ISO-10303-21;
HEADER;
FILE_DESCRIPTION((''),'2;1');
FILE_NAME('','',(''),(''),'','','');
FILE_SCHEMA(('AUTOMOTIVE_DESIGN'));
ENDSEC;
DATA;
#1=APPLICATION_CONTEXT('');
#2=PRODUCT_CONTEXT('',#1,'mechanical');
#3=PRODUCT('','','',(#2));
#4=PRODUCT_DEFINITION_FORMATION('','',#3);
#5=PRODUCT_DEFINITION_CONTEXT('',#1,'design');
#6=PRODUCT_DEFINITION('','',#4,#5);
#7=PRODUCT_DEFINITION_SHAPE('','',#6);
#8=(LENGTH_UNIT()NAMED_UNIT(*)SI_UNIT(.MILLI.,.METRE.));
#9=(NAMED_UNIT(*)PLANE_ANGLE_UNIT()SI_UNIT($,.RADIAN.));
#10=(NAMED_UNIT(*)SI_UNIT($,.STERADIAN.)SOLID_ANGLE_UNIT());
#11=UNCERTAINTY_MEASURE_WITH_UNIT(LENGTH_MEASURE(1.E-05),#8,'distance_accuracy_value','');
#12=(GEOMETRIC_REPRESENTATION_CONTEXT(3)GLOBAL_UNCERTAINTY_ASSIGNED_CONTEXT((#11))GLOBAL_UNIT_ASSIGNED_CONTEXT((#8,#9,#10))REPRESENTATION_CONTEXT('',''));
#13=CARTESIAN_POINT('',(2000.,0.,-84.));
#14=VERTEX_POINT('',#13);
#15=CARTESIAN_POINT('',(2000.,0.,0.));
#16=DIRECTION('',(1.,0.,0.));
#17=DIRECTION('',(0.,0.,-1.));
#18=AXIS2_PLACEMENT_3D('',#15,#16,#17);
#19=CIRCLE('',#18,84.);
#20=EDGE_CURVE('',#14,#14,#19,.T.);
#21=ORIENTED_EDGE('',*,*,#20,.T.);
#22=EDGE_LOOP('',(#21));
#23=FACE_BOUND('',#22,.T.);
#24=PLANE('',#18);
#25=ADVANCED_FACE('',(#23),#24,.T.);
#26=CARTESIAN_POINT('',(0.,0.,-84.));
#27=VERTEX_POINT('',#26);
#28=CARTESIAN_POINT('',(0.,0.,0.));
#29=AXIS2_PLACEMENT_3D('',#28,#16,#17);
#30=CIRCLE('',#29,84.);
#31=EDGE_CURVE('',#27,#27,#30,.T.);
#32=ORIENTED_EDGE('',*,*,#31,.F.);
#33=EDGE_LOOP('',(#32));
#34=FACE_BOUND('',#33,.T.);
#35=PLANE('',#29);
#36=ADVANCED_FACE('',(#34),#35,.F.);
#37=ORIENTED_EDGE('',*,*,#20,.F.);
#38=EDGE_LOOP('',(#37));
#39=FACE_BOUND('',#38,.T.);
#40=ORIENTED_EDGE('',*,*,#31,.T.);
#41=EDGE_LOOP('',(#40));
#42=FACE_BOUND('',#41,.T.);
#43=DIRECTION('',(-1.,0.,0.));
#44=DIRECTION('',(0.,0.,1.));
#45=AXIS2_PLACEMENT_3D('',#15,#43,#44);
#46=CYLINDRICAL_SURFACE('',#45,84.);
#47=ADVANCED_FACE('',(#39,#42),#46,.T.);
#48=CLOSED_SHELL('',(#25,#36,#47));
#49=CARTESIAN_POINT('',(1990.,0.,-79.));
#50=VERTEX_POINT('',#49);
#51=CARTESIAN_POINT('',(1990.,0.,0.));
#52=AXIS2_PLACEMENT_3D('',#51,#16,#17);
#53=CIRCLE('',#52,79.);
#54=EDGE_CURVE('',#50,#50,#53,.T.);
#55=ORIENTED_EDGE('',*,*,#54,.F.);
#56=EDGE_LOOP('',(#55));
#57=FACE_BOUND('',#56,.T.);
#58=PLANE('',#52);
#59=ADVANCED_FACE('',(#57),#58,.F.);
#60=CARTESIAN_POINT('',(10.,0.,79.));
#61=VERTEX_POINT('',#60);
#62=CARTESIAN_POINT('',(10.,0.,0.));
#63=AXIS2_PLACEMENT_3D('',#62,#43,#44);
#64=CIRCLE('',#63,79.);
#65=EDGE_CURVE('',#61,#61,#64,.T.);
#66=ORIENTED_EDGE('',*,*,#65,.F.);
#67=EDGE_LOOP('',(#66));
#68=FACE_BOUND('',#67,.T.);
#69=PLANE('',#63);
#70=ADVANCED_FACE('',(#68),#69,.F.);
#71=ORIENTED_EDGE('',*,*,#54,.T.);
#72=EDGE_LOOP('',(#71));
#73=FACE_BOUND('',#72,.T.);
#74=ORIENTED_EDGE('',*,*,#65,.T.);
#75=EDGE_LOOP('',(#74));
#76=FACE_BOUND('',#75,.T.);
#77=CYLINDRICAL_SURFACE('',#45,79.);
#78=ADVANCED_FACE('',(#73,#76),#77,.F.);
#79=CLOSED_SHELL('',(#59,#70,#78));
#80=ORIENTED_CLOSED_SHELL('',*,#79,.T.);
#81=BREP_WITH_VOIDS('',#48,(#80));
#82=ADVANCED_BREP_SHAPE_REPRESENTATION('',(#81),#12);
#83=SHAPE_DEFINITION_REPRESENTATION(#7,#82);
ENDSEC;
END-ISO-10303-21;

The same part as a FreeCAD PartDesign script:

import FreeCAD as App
import Part
import Sketcher
from FreeCAD import Vector
Q = App.Units.Quantity

doc = App.newDocument("Part")
body = doc.addObject("PartDesign::Body", "Body")

# Sketch on YZ plane
sketch1 = body.newObject("Sketcher::SketchObject", "Sketch")
sketch1.AttachmentSupport = (doc.getObject("YZ_Plane"), [""])
sketch1.MapMode = "FlatFace"
sketch1.addGeometry(Part.Circle(Vector(0, 0, 0), Vector(0, 0, 1), 84), False)
sketch1.addGeometry(Part.Circle(Vector(0, 0, 0), Vector(0, 0, 1), 79), False)
sketch1.addConstraint(Sketcher.Constraint("Coincident", 0, 3, -1, 1))
sketch1.addConstraint(Sketcher.Constraint("Coincident", 1, 3, -1, 1))
sketch1.addConstraint(Sketcher.Constraint("Diameter", 0, Q("168 mm")))
sketch1.addConstraint(Sketcher.Constraint("Diameter", 1, Q("158 mm")))
pad1 = body.newObject("PartDesign::Pad", "Pad")
pad1.Profile = sketch1
pad1.Length = 2000

# Sketch on YZ plane
sketch2 = body.newObject("Sketcher::SketchObject", "Sketch001")
sketch2.AttachmentSupport = (doc.getObject("YZ_Plane"), [""])
sketch2.MapMode = "FlatFace"
sketch2.addGeometry(Part.Circle(Vector(0, 0, 0), Vector(0, 0, 1), 84), False)
sketch2.addConstraint(Sketcher.Constraint("Coincident", 0, 3, -1, 1))
sketch2.addConstraint(Sketcher.Constraint("Diameter", 0, Q("168 mm")))
pad2 = body.newObject("PartDesign::Pad", "Pad001")
pad2.Profile = sketch2
pad2.Length = 10

# Sketch on YZ plane
sketch3 = body.newObject("Sketcher::SketchObject", "Sketch002")
sketch3.AttachmentSupport = (doc.getObject("YZ_Plane"), [""])
sketch3.MapMode = "FlatFace"
sketch3.AttachmentOffset = App.Placement(Vector(0, 0, 1990), App.Rotation())
sketch3.addGeometry(Part.Circle(Vector(0, 0, 0), Vector(0, 0, 1), 84), False)
sketch3.addConstraint(Sketcher.Constraint("Coincident", 0, 3, -1, 1))
sketch3.addConstraint(Sketcher.Constraint("Diameter", 0, Q("168 mm")))
pad3 = body.newObject("PartDesign::Pad", "Pad002")
pad3.Profile = sketch3
pad3.Length = 10

doc.recompute()
